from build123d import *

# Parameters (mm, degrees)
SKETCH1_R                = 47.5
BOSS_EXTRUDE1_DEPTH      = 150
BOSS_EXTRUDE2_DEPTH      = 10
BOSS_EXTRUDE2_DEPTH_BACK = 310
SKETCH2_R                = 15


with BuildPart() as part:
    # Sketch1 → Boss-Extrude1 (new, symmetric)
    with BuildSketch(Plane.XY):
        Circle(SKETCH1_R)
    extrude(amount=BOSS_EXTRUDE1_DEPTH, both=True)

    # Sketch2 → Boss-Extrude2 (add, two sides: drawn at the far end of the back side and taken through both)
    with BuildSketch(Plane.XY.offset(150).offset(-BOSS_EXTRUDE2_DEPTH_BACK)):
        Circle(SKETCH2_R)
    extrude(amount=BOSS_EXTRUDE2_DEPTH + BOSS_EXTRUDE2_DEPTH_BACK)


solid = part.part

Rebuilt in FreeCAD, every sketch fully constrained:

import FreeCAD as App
import Part
import Sketcher
Q = App.Units.Quantity

doc = App.newDocument("Part")
body = doc.addObject("PartDesign::Body", "Body")

# Sketch on XY plane
sketch1 = doc.addObject("Sketcher::SketchObject", "Sketch")
body.addObject(sketch1)
sketch1.AttachmentSupport = (doc.XY_Plane, [""])
sketch1.MapMode = "FlatFace"
sketch1.addGeometry(Part.Circle(App.Vector(0, 0, 0), App.Vector(0, 0, 1), 48), False)
sketch1.addConstraint([
    Sketcher.Constraint("Coincident", 0, 3, -1, 1),
    Sketcher.Constraint("Diameter", 0, Q("95 mm")),
])
pad1 = doc.addObject("PartDesign::Pad", "Pad")
body.addObject(pad1)
pad1.Profile = sketch1
pad1.Length = 300
pad1.Midplane = True

# Sketch on XY plane
sketch2 = doc.addObject("Sketcher::SketchObject", "Sketch001")
body.addObject(sketch2)
sketch2.AttachmentSupport = (doc.XY_Plane, [""])
sketch2.MapMode = "FlatFace"
sketch2.AttachmentOffset = App.Placement(App.Vector(0, 0, 150), App.Rotation())
sketch2.addGeometry(Part.Circle(App.Vector(0, 0, 0), App.Vector(0, 0, 1), 15), False)
sketch2.addConstraint([
    Sketcher.Constraint("Coincident", 0, 3, -1, 1),
    Sketcher.Constraint("Diameter", 0, Q("30 mm")),
])
pad2 = doc.addObject("PartDesign::Pad", "Pad001")
body.addObject(pad2)
pad2.Profile = sketch2
pad2.Type = "TwoLengths"
pad2.Length = 10
pad2.Length2 = 310

doc.recompute()
